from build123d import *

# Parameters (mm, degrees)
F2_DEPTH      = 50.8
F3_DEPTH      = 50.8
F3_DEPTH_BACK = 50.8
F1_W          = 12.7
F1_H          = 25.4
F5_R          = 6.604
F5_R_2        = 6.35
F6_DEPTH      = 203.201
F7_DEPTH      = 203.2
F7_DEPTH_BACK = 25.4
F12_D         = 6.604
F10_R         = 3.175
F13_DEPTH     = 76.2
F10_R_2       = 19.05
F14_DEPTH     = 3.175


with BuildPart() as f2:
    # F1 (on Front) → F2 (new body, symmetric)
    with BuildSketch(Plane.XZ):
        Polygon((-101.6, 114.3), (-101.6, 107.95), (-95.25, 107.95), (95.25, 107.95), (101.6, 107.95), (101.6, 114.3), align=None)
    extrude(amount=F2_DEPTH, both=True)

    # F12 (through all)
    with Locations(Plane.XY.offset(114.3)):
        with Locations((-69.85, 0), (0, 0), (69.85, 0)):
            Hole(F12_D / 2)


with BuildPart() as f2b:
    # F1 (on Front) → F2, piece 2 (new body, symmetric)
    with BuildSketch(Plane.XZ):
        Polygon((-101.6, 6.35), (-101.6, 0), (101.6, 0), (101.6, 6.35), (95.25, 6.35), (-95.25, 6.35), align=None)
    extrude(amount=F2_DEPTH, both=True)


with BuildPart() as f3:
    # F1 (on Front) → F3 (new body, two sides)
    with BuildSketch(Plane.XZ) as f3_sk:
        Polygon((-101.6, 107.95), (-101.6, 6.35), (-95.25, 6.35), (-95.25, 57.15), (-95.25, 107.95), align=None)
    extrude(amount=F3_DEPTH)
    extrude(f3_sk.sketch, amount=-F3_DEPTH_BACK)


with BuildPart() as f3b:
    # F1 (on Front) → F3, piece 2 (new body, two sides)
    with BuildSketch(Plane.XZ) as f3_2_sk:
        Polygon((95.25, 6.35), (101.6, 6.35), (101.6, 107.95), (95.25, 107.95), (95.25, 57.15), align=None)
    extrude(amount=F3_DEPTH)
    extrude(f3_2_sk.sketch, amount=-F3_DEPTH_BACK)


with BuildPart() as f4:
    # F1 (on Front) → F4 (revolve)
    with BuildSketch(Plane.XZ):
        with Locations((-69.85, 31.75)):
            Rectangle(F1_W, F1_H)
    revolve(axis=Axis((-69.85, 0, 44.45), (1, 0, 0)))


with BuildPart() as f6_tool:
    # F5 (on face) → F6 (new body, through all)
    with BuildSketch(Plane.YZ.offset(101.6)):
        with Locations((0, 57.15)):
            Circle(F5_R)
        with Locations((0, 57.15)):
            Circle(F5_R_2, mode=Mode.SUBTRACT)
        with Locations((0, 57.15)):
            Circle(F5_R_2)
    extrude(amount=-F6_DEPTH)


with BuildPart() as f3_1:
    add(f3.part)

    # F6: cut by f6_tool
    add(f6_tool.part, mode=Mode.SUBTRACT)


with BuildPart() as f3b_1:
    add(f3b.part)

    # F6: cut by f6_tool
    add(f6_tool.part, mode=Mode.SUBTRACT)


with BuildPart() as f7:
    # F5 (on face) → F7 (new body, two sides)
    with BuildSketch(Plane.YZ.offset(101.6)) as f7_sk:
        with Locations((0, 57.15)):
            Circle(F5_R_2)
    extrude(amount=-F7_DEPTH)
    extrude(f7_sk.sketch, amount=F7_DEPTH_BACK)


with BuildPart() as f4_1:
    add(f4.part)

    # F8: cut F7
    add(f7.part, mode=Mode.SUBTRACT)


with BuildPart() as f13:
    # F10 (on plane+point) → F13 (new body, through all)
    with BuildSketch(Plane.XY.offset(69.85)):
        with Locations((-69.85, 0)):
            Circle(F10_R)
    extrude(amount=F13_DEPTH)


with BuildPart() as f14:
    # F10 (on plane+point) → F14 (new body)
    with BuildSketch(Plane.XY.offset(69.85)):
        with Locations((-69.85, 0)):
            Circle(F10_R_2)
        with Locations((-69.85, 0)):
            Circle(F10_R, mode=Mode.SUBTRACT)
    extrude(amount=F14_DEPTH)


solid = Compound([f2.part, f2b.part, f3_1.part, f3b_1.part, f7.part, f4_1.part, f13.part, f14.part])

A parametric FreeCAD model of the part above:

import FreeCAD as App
import Part
import Sketcher
Q = App.Units.Quantity


def add_polygon(sketch, points):
    """Adds a closed chain of lines whose ends are joined by coincident constraints."""
    first, n = sketch.GeometryCount, len(points)
    for a, b in zip(points, points[1:] + points[:1]):
        sketch.addGeometry(Part.LineSegment(App.Vector(*a, 0), App.Vector(*b, 0)), False)
    for i in range(n):
        sketch.addConstraint(Sketcher.Constraint("Coincident", first + i, 2, first + (i + 1) % n, 1))

doc = App.newDocument("Part")
body = doc.addObject("PartDesign::Body", "Body")

# Sketch on XZ plane
sketch1 = body.newObject("Sketcher::SketchObject", "Sketch")
sketch1.AttachmentSupport = (doc.getObject("XZ_Plane"), [""])
sketch1.MapMode = "FlatFace"
add_polygon(sketch1, [(-102, 114), (-102, 108), (102, 108), (102, 114)])  # lines 0-3
sketch1.addConstraint(Sketcher.Constraint("Vertical", 0))
sketch1.addConstraint(Sketcher.Constraint("Horizontal", 1))
sketch1.addConstraint(Sketcher.Constraint("Vertical", 2))
sketch1.addConstraint(Sketcher.Constraint("Horizontal", 3))
sketch1.addConstraint(Sketcher.Constraint("DistanceX", 1, 1, 1, 2, Q("8 in")))
sketch1.addConstraint(Sketcher.Constraint("DistanceX", 0, 2, -1, 1, Q("4 in")))
sketch1.addConstraint(Sketcher.Constraint("DistanceY", 0, 2, 0, 1, Q("0.25 in")))
sketch1.addConstraint(Sketcher.Constraint("DistanceY", -1, 1, 2, 2, Q("4.5 in")))
pad1 = body.newObject("PartDesign::Pad", "Pad")
pad1.Profile = sketch1
pad1.Length = Q("4 in")
pad1.Midplane = True

# Sketch on XY plane
sketch2 = body.newObject("Sketcher::SketchObject", "Sketch001")
sketch2.AttachmentSupport = (doc.getObject("XY_Plane"), [""])
sketch2.MapMode = "FlatFace"
sketch2.AttachmentOffset = App.Placement(App.Vector(0, 0, 4.5 * 25.4), App.Rotation())
sketch2.addGeometry(Part.Circle(App.Vector(-69.8, 0, 0), App.Vector(0, 0, 1), 3.3), False)
sketch2.addGeometry(Part.Circle(App.Vector(0, 0, 0), App.Vector(0, 0, 1), 3.3), False)
sketch2.addGeometry(Part.Circle(App.Vector(69.8, 0, 0), App.Vector(0, 0, 1), 3.3), False)
sketch2.addConstraint(Sketcher.Constraint("Coincident", 1, 3, -1, 1))
sketch2.addConstraint(Sketcher.Constraint("Equal", 0, 1))
sketch2.addConstraint(Sketcher.Constraint("Equal", 1, 2))
sketch2.addConstraint(Sketcher.Constraint("Symmetric", 0, 3, 2, 3, -1, 1))
sketch2.addConstraint(Sketcher.Constraint("PointOnObject", 0, 3, -1))
sketch2.addConstraint(Sketcher.Constraint("Diameter", 0, Q("0.26 in")))
sketch2.addConstraint(Sketcher.Constraint("DistanceX", 0, 3, 2, 3, Q("5.5 in")))
doc.recompute()
hole = body.newObject("PartDesign::Hole", "Hole")
hole.Profile = sketch2
hole.ThreadType = "None"
hole.Diameter = Q("0.26 in")
hole.DepthType = "ThroughAll"
body2 = doc.addObject("PartDesign::Body", "Body001")

# Sketch on XZ plane
sketch3 = body2.newObject("Sketcher::SketchObject", "Sketch002")
sketch3.AttachmentSupport = (doc.getObject("XZ_Plane001"), [""])
sketch3.MapMode = "FlatFace"
add_polygon(sketch3, [(-102, 6), (-102, 0), (102, 0), (102, 6)])  # lines 0-3
sketch3.addConstraint(Sketcher.Constraint("Vertical", 0))
sketch3.addConstraint(Sketcher.Constraint("Horizontal", 1))
sketch3.addConstraint(Sketcher.Constraint("Vertical", 2))
sketch3.addConstraint(Sketcher.Constraint("Horizontal", 3))
sketch3.addConstraint(Sketcher.Constraint("Symmetric", 0, 2, 1, 2, -1, 1))
sketch3.addConstraint(Sketcher.Constraint("DistanceX", 1, 1, 1, 2, Q("8 in")))
sketch3.addConstraint(Sketcher.Constraint("DistanceY", 0, 2, 0, 1, Q("0.25 in")))
pad2 = body2.newObject("PartDesign::Pad", "Pad001")
pad2.Profile = sketch3
pad2.Length = Q("4 in")
pad2.Midplane = True
body3 = doc.addObject("PartDesign::Body", "Body002")

# Sketch on XZ plane
sketch4 = body3.newObject("Sketcher::SketchObject", "Sketch003")
sketch4.AttachmentSupport = (doc.getObject("XZ_Plane002"), [""])
sketch4.MapMode = "FlatFace"
add_polygon(sketch4, [(-102, 108), (-102, 6), (-95, 6), (-95, 108)])  # lines 0-3
sketch4.addConstraint(Sketcher.Constraint("Vertical", 0))
sketch4.addConstraint(Sketcher.Constraint("Horizontal", 1))
sketch4.addConstraint(Sketcher.Constraint("Vertical", 2))
sketch4.addConstraint(Sketcher.Constraint("Horizontal", 3))
sketch4.addConstraint(Sketcher.Constraint("DistanceY", 0, 2, 0, 1, Q("4 in")))
sketch4.addConstraint(Sketcher.Constraint("DistanceX", 0, 2, -1, 1, Q("4 in")))
sketch4.addConstraint(Sketcher.Constraint("DistanceX", 1, 1, 1, 2, Q("0.25 in")))
sketch4.addConstraint(Sketcher.Constraint("DistanceY", -1, 1, 0, 2, Q("0.25 in")))
pad3 = body3.newObject("PartDesign::Pad", "Pad002")
pad3.Profile = sketch4
pad3.Type = "TwoLengths"
pad3.Length = Q("2 in")
pad3.Length2 = Q("2 in")
body4 = doc.addObject("PartDesign::Body", "Body003")

# Sketch on XZ plane
sketch5 = body4.newObject("Sketcher::SketchObject", "Sketch004")
sketch5.AttachmentSupport = (doc.getObject("XZ_Plane003"), [""])
sketch5.MapMode = "FlatFace"
add_polygon(sketch5, [(95, 6), (102, 6), (102, 108), (95, 108)])  # lines 0-3
sketch5.addConstraint(Sketcher.Constraint("Horizontal", 0))
sketch5.addConstraint(Sketcher.Constraint("Vertical", 1))
sketch5.addConstraint(Sketcher.Constraint("Horizontal", 2))
sketch5.addConstraint(Sketcher.Constraint("Vertical", 3))
sketch5.addConstraint(Sketcher.Constraint("DistanceY", 1, 1, 1, 2, Q("4 in")))
sketch5.addConstraint(Sketcher.Constraint("DistanceX", -1, 1, 0, 2, Q("4 in")))
sketch5.addConstraint(Sketcher.Constraint("DistanceX", 0, 1, 0, 2, Q("0.25 in")))
sketch5.addConstraint(Sketcher.Constraint("DistanceY", -1, 1, 0, 2, Q("0.25 in")))
pad4 = body4.newObject("PartDesign::Pad", "Pad003")
pad4.Profile = sketch5
pad4.Type = "TwoLengths"
pad4.Length = Q("2 in")
pad4.Length2 = Q("2 in")
body5 = doc.addObject("PartDesign::Body", "Body004")

# Sketch on XZ plane
sketch6 = body5.newObject("Sketcher::SketchObject", "Sketch005")
sketch6.AttachmentSupport = (doc.getObject("XZ_Plane004"), [""])
sketch6.MapMode = "FlatFace"
add_polygon(sketch6, [(-76, 44), (-76, 19), (-64, 19), (-64, 44)])  # lines 0-3
sketch6.addGeometry(Part.LineSegment(App.Vector(-76, 44, 0), App.Vector(-64, 44, 0)), True)  # axis
sketch6.addConstraint(Sketcher.Constraint("Vertical", 0))
sketch6.addConstraint(Sketcher.Constraint("Horizontal", 1))
sketch6.addConstraint(Sketcher.Constraint("Vertical", 2))
sketch6.addConstraint(Sketcher.Constraint("Horizontal", 3))
sketch6.addConstraint(Sketcher.Constraint("Horizontal", 4))
sketch6.addConstraint(Sketcher.Constraint("Coincident", 4, 1, 3, 2))
sketch6.addConstraint(Sketcher.Constraint("Vertical", 1, 2, 4, 2))
sketch6.addConstraint(Sketcher.Constraint("DistanceY", 0, 2, 0, 1, Q("1 in")))
sketch6.addConstraint(Sketcher.Constraint("DistanceX", 1, 1, 1, 2, Q("0.5 in")))
sketch6.addConstraint(Sketcher.Constraint("DistanceX", 0, 2, -1, 1, Q("3 in")))
sketch6.addConstraint(Sketcher.Constraint("DistanceY", -1, 1, 0, 2, Q("0.75 in")))
revolution = body5.newObject("PartDesign::Revolution", "Revolution")
revolution.Profile = sketch6
revolution.ReferenceAxis = (sketch6, ["Axis0"])
revolution.Angle = 360
body6 = doc.addObject("PartDesign::Body", "Body005")

# Sketch on YZ plane
sketch7 = body6.newObject("Sketcher::SketchObject", "Sketch006")
sketch7.AttachmentSupport = (doc.getObject("YZ_Plane005"), [""])
sketch7.MapMode = "FlatFace"
sketch7.AttachmentOffset = App.Placement(App.Vector(0, 0, 4 * 25.4), App.Rotation())
sketch7.addGeometry(Part.Circle(App.Vector(0, 57, 0), App.Vector(0, 0, 1), 7), False)
sketch7.addConstraint(Sketcher.Constraint("PointOnObject", 0, 3, -2))
sketch7.addConstraint(Sketcher.Constraint("Diameter", 0, Q("0.52 in")))
sketch7.addConstraint(Sketcher.Constraint("DistanceY", -1, 1, 0, 3, Q("2.25 in")))
pad5 = body6.newObject("PartDesign::Pad", "Pad004")
pad5.Profile = sketch7
pad5.Length = 203.201
pad5.Reversed = True
doc.recompute()

body7 = doc.addObject("PartDesign::Body", "Body006")
body7.BaseFeature = body6
boolean = body3.newObject("PartDesign::Boolean", "Boolean")
boolean.Type = "Cut"
boolean.addObjects([body7])
doc.recompute()

boolean2 = body4.newObject("PartDesign::Boolean", "Boolean001")
boolean2.Type = "Cut"
boolean2.addObjects([body6])
body8 = doc.addObject("PartDesign::Body", "Body007")

# Sketch on YZ plane
sketch8 = body8.newObject("Sketcher::SketchObject", "Sketch007")
sketch8.AttachmentSupport = (doc.getObject("YZ_Plane007"), [""])
sketch8.MapMode = "FlatFace"
sketch8.AttachmentOffset = App.Placement(App.Vector(0, 0, 4 * 25.4), App.Rotation())
sketch8.addGeometry(Part.Circle(App.Vector(0, 57, 0), App.Vector(0, 0, 1), 6), False)
sketch8.addConstraint(Sketcher.Constraint("PointOnObject", 0, 3, -2))
sketch8.addConstraint(Sketcher.Constraint("Diameter", 0, Q("0.5 in")))
sketch8.addConstraint(Sketcher.Constraint("DistanceY", -1, 1, 0, 3, Q("2.25 in")))
pad6 = body8.newObject("PartDesign::Pad", "Pad005")
pad6.Profile = sketch8
pad6.Type = "TwoLengths"
pad6.Length = Q("8 in")
pad6.Length2 = Q("1 in")
pad6.Reversed = True
doc.recompute()

body9 = doc.addObject("PartDesign::Body", "Body008")
body9.BaseFeature = body8
boolean3 = body5.newObject("PartDesign::Boolean", "Boolean002")
boolean3.Type = "Cut"
boolean3.addObjects([body9])
doc.recompute()
body10 = doc.addObject("PartDesign::Body", "Body009")

# Sketch on XY plane
sketch9 = body10.newObject("Sketcher::SketchObject", "Sketch008")
sketch9.AttachmentSupport = (doc.getObject("XY_Plane009"), [""])
sketch9.MapMode = "FlatFace"
sketch9.AttachmentOffset = App.Placement(App.Vector(0, 0, 2.75 * 25.4), App.Rotation())
sketch9.addGeometry(Part.Circle(App.Vector(-69.8, 0, 0), App.Vector(0, 0, 1), 3.2), False)
sketch9.addConstraint(Sketcher.Constraint("PointOnObject", 0, 3, -1))
sketch9.addConstraint(Sketcher.Constraint("Diameter", 0, Q("0.25 in")))
sketch9.addConstraint(Sketcher.Constraint("DistanceX", 0, 3, -1, 1, Q("2.75 in")))
pad7 = body10.newObject("PartDesign::Pad", "Pad006")
pad7.Profile = sketch9
pad7.Length = Q("3 in")
body11 = doc.addObject("PartDesign::Body", "Body010")

# Sketch on XY plane
sketch10 = body11.newObject("Sketcher::SketchObject", "Sketch009")
sketch10.AttachmentSupport = (doc.getObject("XY_Plane010"), [""])
sketch10.MapMode = "FlatFace"
sketch10.AttachmentOffset = App.Placement(App.Vector(0, 0, 2.75 * 25.4), App.Rotation())
sketch10.addGeometry(Part.Circle(App.Vector(-69.8, 0, 0), App.Vector(0, 0, 1), 19.1), False)
sketch10.addGeometry(Part.Circle(App.Vector(-69.8, 0, 0), App.Vector(0, 0, 1), 3.2), False)
sketch10.addConstraint(Sketcher.Constraint("Coincident", 1, 3, 0, 3))
sketch10.addConstraint(Sketcher.Constraint("PointOnObject", 0, 3, -1))
sketch10.addConstraint(Sketcher.Constraint("Diameter", 0, Q("1.5 in")))
sketch10.addConstraint(Sketcher.Constraint("Diameter", 1, Q("0.25 in")))
sketch10.addConstraint(Sketcher.Constraint("DistanceX", 0, 3, -1, 1, Q("2.75 in")))
pad8 = body11.newObject("PartDesign::Pad", "Pad007")
pad8.Profile = sketch10
pad8.Length = Q("0.125 in")

doc.recompute()
